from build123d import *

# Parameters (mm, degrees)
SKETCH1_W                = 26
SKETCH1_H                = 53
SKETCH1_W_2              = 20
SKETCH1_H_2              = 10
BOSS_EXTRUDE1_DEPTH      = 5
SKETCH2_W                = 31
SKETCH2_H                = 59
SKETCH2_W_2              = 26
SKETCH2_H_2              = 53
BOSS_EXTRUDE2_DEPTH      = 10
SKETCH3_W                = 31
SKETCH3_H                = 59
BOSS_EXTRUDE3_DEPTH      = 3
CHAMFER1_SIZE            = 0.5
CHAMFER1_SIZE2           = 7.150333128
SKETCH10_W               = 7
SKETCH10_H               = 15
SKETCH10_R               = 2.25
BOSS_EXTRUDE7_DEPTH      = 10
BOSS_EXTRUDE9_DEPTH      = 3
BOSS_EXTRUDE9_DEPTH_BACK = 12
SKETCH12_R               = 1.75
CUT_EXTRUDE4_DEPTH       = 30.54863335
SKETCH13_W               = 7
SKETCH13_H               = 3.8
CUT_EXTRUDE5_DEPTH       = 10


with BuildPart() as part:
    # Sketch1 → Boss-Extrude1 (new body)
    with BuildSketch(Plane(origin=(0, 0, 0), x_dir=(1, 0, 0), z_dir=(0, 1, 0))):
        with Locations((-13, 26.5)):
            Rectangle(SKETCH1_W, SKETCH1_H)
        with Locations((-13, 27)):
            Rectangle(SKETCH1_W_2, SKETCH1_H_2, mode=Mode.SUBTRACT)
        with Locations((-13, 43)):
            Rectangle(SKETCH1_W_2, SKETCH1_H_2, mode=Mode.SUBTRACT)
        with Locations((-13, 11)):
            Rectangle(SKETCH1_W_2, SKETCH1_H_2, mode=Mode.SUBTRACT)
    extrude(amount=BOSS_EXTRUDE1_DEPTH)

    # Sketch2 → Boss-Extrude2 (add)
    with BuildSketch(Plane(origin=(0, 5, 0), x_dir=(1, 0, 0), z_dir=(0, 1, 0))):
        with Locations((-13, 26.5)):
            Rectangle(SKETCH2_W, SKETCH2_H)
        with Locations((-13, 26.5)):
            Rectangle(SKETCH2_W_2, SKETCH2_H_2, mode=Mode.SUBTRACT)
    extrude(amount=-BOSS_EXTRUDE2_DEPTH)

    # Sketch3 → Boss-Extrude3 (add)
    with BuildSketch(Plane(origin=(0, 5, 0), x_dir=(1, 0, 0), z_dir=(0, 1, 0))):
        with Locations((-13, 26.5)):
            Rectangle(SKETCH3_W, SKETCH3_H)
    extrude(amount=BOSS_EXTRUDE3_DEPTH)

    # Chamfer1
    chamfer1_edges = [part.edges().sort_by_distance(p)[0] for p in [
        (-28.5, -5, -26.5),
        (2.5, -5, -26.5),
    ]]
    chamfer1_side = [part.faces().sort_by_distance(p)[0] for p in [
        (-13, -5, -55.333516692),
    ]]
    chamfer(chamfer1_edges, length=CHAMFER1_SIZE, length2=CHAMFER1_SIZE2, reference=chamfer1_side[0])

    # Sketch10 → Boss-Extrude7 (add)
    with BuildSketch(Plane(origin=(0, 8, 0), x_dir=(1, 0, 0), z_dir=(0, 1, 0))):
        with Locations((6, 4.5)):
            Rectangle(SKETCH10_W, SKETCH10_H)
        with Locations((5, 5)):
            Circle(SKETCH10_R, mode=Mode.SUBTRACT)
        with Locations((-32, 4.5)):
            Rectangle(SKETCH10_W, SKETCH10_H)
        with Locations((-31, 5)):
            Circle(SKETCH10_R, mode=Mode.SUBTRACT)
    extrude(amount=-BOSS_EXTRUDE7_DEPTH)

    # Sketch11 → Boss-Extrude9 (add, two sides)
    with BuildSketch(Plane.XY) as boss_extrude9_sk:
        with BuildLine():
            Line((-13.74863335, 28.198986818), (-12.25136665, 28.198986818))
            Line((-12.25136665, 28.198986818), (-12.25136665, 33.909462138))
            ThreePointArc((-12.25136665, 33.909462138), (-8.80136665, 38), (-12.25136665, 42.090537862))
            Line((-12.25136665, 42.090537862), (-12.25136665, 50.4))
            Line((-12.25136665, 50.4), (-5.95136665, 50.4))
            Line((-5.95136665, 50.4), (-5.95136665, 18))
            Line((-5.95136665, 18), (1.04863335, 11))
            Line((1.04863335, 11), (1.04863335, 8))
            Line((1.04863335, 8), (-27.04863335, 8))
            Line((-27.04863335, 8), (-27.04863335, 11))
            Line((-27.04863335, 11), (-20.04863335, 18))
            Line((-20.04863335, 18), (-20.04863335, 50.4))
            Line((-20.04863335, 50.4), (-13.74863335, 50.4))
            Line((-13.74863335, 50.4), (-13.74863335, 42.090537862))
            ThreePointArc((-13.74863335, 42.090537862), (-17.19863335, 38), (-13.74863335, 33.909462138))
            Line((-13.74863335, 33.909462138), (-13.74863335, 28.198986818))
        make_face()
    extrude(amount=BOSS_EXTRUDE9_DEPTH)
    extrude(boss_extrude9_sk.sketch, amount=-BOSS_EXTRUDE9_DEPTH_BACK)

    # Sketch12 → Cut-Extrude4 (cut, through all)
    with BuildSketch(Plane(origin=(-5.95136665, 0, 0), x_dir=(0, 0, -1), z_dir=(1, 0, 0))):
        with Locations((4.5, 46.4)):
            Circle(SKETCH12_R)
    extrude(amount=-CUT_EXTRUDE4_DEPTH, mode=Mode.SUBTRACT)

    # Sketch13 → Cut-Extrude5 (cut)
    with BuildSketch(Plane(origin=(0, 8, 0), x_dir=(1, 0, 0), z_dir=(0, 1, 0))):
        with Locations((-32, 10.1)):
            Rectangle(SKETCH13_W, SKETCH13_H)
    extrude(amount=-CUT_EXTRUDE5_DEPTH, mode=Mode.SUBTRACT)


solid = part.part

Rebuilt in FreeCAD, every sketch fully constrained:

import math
import FreeCAD as App
import Part
import Sketcher
from FreeCAD import Vector


def edges_at(feature, points):
    """Names of the edges that pass closest to the given points."""
    edges = feature.Shape.Edges
    near = lambda p: min(range(len(edges)), key=lambda i: edges[i].distToShape(Part.Vertex(*p))[0])
    return sorted({f"Edge{near(p) + 1}" for p in points})

doc = App.newDocument("Part")
body = doc.addObject("PartDesign::Body", "Body")

# Sketch on XZ plane
sketch1 = doc.addObject("Sketcher::SketchObject", "Sketch")
body.addObject(sketch1)
sketch1.AttachmentSupport = (doc.XZ_Plane, [""])
sketch1.MapMode = "FlatFace"
sketch1.addGeometry(Part.LineSegment(Vector(-26, -53, 0), Vector(-26, 0, 0)), False)
sketch1.addGeometry(Part.LineSegment(Vector(-26, 0, 0), Vector(0, 0, 0)), False)
sketch1.addGeometry(Part.LineSegment(Vector(0, 0, 0), Vector(0, -53, 0)), False)
sketch1.addGeometry(Part.LineSegment(Vector(0, -53, 0), Vector(-26, -53, 0)), False)
sketch1.addGeometry(Part.LineSegment(Vector(-3, -6, 0), Vector(-23, -6, 0)), False)
sketch1.addGeometry(Part.LineSegment(Vector(-23, -6, 0), Vector(-23, -16, 0)), False)
sketch1.addGeometry(Part.LineSegment(Vector(-23, -16, 0), Vector(-3, -16, 0)), False)
sketch1.addGeometry(Part.LineSegment(Vector(-3, -16, 0), Vector(-3, -6, 0)), False)
sketch1.addGeometry(Part.LineSegment(Vector(-3, -22, 0), Vector(-23, -22, 0)), False)
sketch1.addGeometry(Part.LineSegment(Vector(-23, -22, 0), Vector(-23, -32, 0)), False)
sketch1.addGeometry(Part.LineSegment(Vector(-23, -32, 0), Vector(-3, -32, 0)), False)
sketch1.addGeometry(Part.LineSegment(Vector(-3, -32, 0), Vector(-3, -22, 0)), False)
sketch1.addGeometry(Part.LineSegment(Vector(-3, -38, 0), Vector(-23, -38, 0)), False)
sketch1.addGeometry(Part.LineSegment(Vector(-23, -38, 0), Vector(-23, -48, 0)), False)
sketch1.addGeometry(Part.LineSegment(Vector(-23, -48, 0), Vector(-3, -48, 0)), False)
sketch1.addGeometry(Part.LineSegment(Vector(-3, -48, 0), Vector(-3, -38, 0)), False)
sketch1.addConstraint(Sketcher.Constraint("Coincident", 0, 2, 1, 1))
sketch1.addConstraint(Sketcher.Constraint("Coincident", 1, 2, 2, 1))
sketch1.addConstraint(Sketcher.Constraint("Coincident", 2, 2, 3, 1))
sketch1.addConstraint(Sketcher.Constraint("Coincident", 3, 2, 0, 1))
sketch1.addConstraint(Sketcher.Constraint("Coincident", 4, 2, 5, 1))
sketch1.addConstraint(Sketcher.Constraint("Coincident", 5, 2, 6, 1))
sketch1.addConstraint(Sketcher.Constraint("Coincident", 6, 2, 7, 1))
sketch1.addConstraint(Sketcher.Constraint("Coincident", 7, 2, 4, 1))
sketch1.addConstraint(Sketcher.Constraint("Coincident", 8, 2, 9, 1))
sketch1.addConstraint(Sketcher.Constraint("Coincident", 9, 2, 10, 1))
sketch1.addConstraint(Sketcher.Constraint("Coincident", 10, 2, 11, 1))
sketch1.addConstraint(Sketcher.Constraint("Coincident", 11, 2, 8, 1))
sketch1.addConstraint(Sketcher.Constraint("Coincident", 12, 2, 13, 1))
sketch1.addConstraint(Sketcher.Constraint("Coincident", 13, 2, 14, 1))
sketch1.addConstraint(Sketcher.Constraint("Coincident", 14, 2, 15, 1))
sketch1.addConstraint(Sketcher.Constraint("Coincident", 15, 2, 12, 1))
sketch1.addConstraint(Sketcher.Constraint("Vertical", 0))
sketch1.addConstraint(Sketcher.Constraint("Horizontal", 1))
sketch1.addConstraint(Sketcher.Constraint("Vertical", 2))
sketch1.addConstraint(Sketcher.Constraint("Horizontal", 3))
sketch1.addConstraint(Sketcher.Constraint("Horizontal", 4))
sketch1.addConstraint(Sketcher.Constraint("Vertical", 5))
sketch1.addConstraint(Sketcher.Constraint("Horizontal", 6))
sketch1.addConstraint(Sketcher.Constraint("Vertical", 7))
sketch1.addConstraint(Sketcher.Constraint("Horizontal", 8))
sketch1.addConstraint(Sketcher.Constraint("Vertical", 9))
sketch1.addConstraint(Sketcher.Constraint("Horizontal", 10))
sketch1.addConstraint(Sketcher.Constraint("Vertical", 11))
sketch1.addConstraint(Sketcher.Constraint("Horizontal", 12))
sketch1.addConstraint(Sketcher.Constraint("Vertical", 13))
sketch1.addConstraint(Sketcher.Constraint("Horizontal", 14))
sketch1.addConstraint(Sketcher.Constraint("Vertical", 15))
sketch1.addConstraint(Sketcher.Constraint("Coincident", 1, 2, -1, 1))
sketch1.addConstraint(Sketcher.Constraint("Vertical", 5, 2, 8, 2))
sketch1.addConstraint(Sketcher.Constraint("Vertical", 7, 2, 10, 2))
sketch1.addConstraint(Sketcher.Constraint("Vertical", 9, 2, 12, 2))
sketch1.addConstraint(Sketcher.Constraint("Vertical", 11, 2, 14, 2))
sketch1.addConstraint(Sketcher.Constraint("Equal", 7, 9))
sketch1.addConstraint(Sketcher.Constraint("Equal", 11, 13))
sketch1.addConstraint(Sketcher.Constraint("DistanceX", 1, 1, 1, 2, 26.0))
sketch1.addConstraint(Sketcher.Constraint("DistanceX", 4, 2, 4, 1, 20.0))
sketch1.addConstraint(Sketcher.Constraint("DistanceY", 0, 1, 0, 2, 53.0))
sketch1.addConstraint(Sketcher.Constraint("DistanceY", 5, 2, 5, 1, 10.0))
sketch1.addConstraint(Sketcher.Constraint("DistanceX", 4, 2, -1, 1, 23.0))
sketch1.addConstraint(Sketcher.Constraint("DistanceY", 4, 2, -1, 1, 6.0))
sketch1.addConstraint(Sketcher.Constraint("DistanceY", 8, 2, -1, 1, 22.0))
sketch1.addConstraint(Sketcher.Constraint("DistanceY", 12, 2, -1, 1, 38.0))
pad1 = doc.addObject("PartDesign::Pad", "Pad")
body.addObject(pad1)
pad1.Profile = sketch1
pad1.Length = 5
pad1.Reversed = True

# Sketch on XZ plane
sketch2 = doc.addObject("Sketcher::SketchObject", "Sketch001")
body.addObject(sketch2)
sketch2.AttachmentSupport = (doc.XZ_Plane, [""])
sketch2.MapMode = "FlatFace"
sketch2.AttachmentOffset = App.Placement(Vector(0, 0, -5), App.Rotation())
sketch2.addGeometry(Part.LineSegment(Vector(-28, -56, 0), Vector(-28, 3, 0)), False)
sketch2.addGeometry(Part.LineSegment(Vector(-28, 3, 0), Vector(2, 3, 0)), False)
sketch2.addGeometry(Part.LineSegment(Vector(2, 3, 0), Vector(2, -56, 0)), False)
sketch2.addGeometry(Part.LineSegment(Vector(2, -56, 0), Vector(-28, -56, 0)), False)
sketch2.addGeometry(Part.LineSegment(Vector(0, 0, 0), Vector(-26, 0, 0)), False)
sketch2.addGeometry(Part.LineSegment(Vector(-26, 0, 0), Vector(-26, -53, 0)), False)
sketch2.addGeometry(Part.LineSegment(Vector(-26, -53, 0), Vector(0, -53, 0)), False)
sketch2.addGeometry(Part.LineSegment(Vector(0, -53, 0), Vector(0, 0, 0)), False)
sketch2.addConstraint(Sketcher.Constraint("Coincident", 0, 2, 1, 1))
sketch2.addConstraint(Sketcher.Constraint("Coincident", 1, 2, 2, 1))
sketch2.addConstraint(Sketcher.Constraint("Coincident", 2, 2, 3, 1))
sketch2.addConstraint(Sketcher.Constraint("Coincident", 3, 2, 0, 1))
sketch2.addConstraint(Sketcher.Constraint("Coincident", 4, 2, 5, 1))
sketch2.addConstraint(Sketcher.Constraint("Coincident", 5, 2, 6, 1))
sketch2.addConstraint(Sketcher.Constraint("Coincident", 6, 2, 7, 1))
sketch2.addConstraint(Sketcher.Constraint("Coincident", 7, 2, 4, 1))
sketch2.addConstraint(Sketcher.Constraint("Vertical", 0))
sketch2.addConstraint(Sketcher.Constraint("Horizontal", 1))
sketch2.addConstraint(Sketcher.Constraint("Vertical", 2))
sketch2.addConstraint(Sketcher.Constraint("Horizontal", 3))
sketch2.addConstraint(Sketcher.Constraint("Horizontal", 4))
sketch2.addConstraint(Sketcher.Constraint("Vertical", 5))
sketch2.addConstraint(Sketcher.Constraint("Horizontal", 6))
sketch2.addConstraint(Sketcher.Constraint("Vertical", 7))
sketch2.addConstraint(Sketcher.Constraint("Coincident", 7, 2, -1, 1))
sketch2.addConstraint(Sketcher.Constraint("DistanceX", 1, 1, 1, 2, 31.0))
sketch2.addConstraint(Sketcher.Constraint("DistanceX", 4, 2, 4, 1, 26.0))
sketch2.addConstraint(Sketcher.Constraint("DistanceY", 0, 1, 0, 2, 59.0))
sketch2.addConstraint(Sketcher.Constraint("DistanceY", 5, 2, 5, 1, 53.0))
sketch2.addConstraint(Sketcher.Constraint("DistanceY", -1, 1, 0, 2, 3.0))
sketch2.addConstraint(Sketcher.Constraint("DistanceX", 0, 2, -1, 1, 28.5))
pad2 = doc.addObject("PartDesign::Pad", "Pad001")
body.addObject(pad2)
pad2.Profile = sketch2
pad2.Length = 10

# Sketch on XZ plane
sketch3 = doc.addObject("Sketcher::SketchObject", "Sketch002")
body.addObject(sketch3)
sketch3.AttachmentSupport = (doc.XZ_Plane, [""])
sketch3.MapMode = "FlatFace"
sketch3.AttachmentOffset = App.Placement(Vector(0, 0, -5), App.Rotation())
sketch3.addGeometry(Part.LineSegment(Vector(-28, -56, 0), Vector(-28, 3, 0)), False)
sketch3.addGeometry(Part.LineSegment(Vector(-28, 3, 0), Vector(2, 3, 0)), False)
sketch3.addGeometry(Part.LineSegment(Vector(2, 3, 0), Vector(2, -56, 0)), False)
sketch3.addGeometry(Part.LineSegment(Vector(2, -56, 0), Vector(-28, -56, 0)), False)
sketch3.addConstraint(Sketcher.Constraint("Coincident", 0, 2, 1, 1))
sketch3.addConstraint(Sketcher.Constraint("Coincident", 1, 2, 2, 1))
sketch3.addConstraint(Sketcher.Constraint("Coincident", 2, 2, 3, 1))
sketch3.addConstraint(Sketcher.Constraint("Coincident", 3, 2, 0, 1))
sketch3.addConstraint(Sketcher.Constraint("Vertical", 0))
sketch3.addConstraint(Sketcher.Constraint("Horizontal", 1))
sketch3.addConstraint(Sketcher.Constraint("Vertical", 2))
sketch3.addConstraint(Sketcher.Constraint("Horizontal", 3))
sketch3.addConstraint(Sketcher.Constraint("DistanceX", 1, 1, 1, 2, 31.0))
sketch3.addConstraint(Sketcher.Constraint("DistanceY", 0, 1, 0, 2, 59.0))
sketch3.addConstraint(Sketcher.Constraint("DistanceY", -1, 1, 0, 2, 3.0))
sketch3.addConstraint(Sketcher.Constraint("DistanceX", 0, 2, -1, 1, 28.5))
pad3 = doc.addObject("PartDesign::Pad", "Pad002")
body.addObject(pad3)
pad3.Profile = sketch3
pad3.Length = 3
pad3.Reversed = True
doc.recompute()

chamfer = doc.addObject("PartDesign::Chamfer", "Chamfer")
body.addObject(chamfer)
chamfer.Base = (pad3, edges_at(pad3, [(-28.5, -5, -26.5), (2.5, -5, -26.5)]))
chamfer.ChamferType = "Two distances"
chamfer.Size = 0.5
chamfer.Size2 = 7.150333

# Sketch on XZ plane
sketch4 = doc.addObject("Sketcher::SketchObject", "Sketch003")
body.addObject(sketch4)
sketch4.AttachmentSupport = (doc.XZ_Plane, [""])
sketch4.MapMode = "FlatFace"
sketch4.AttachmentOffset = App.Placement(Vector(0, 0, -8), App.Rotation())
sketch4.addGeometry(Part.LineSegment(Vector(2.5, -12, 0), Vector(2.5, 3, 0)), False)
sketch4.addGeometry(Part.LineSegment(Vector(2.5, 3, 0), Vector(9.5, 3, 0)), False)
sketch4.addGeometry(Part.LineSegment(Vector(9.5, 3, 0), Vector(9.5, -12, 0)), False)
sketch4.addGeometry(Part.LineSegment(Vector(9.5, -12, 0), Vector(2.5, -12, 0)), False)
sketch4.addGeometry(Part.Circle(Vector(5, -5, 0), Vector(0, 0, 1), 2.2), False)
sketch4.addGeometry(Part.LineSegment(Vector(-35.5, -12, 0), Vector(-35.5, 3, 0)), False)
sketch4.addGeometry(Part.LineSegment(Vector(-35.5, 3, 0), Vector(-28.5, 3, 0)), False)
sketch4.addGeometry(Part.LineSegment(Vector(-28.5, 3, 0), Vector(-28.5, -12, 0)), False)
sketch4.addGeometry(Part.LineSegment(Vector(-28.5, -12, 0), Vector(-35.5, -12, 0)), False)
sketch4.addGeometry(Part.Circle(Vector(-31, -5, 0), Vector(0, 0, 1), 2.2), False)
sketch4.addConstraint(Sketcher.Constraint("Coincident", 0, 2, 1, 1))
sketch4.addConstraint(Sketcher.Constraint("Coincident", 1, 2, 2, 1))
sketch4.addConstraint(Sketcher.Constraint("Coincident", 2, 2, 3, 1))
sketch4.addConstraint(Sketcher.Constraint("Coincident", 3, 2, 0, 1))
sketch4.addConstraint(Sketcher.Constraint("Coincident", 5, 2, 6, 1))
sketch4.addConstraint(Sketcher.Constraint("Coincident", 6, 2, 7, 1))
sketch4.addConstraint(Sketcher.Constraint("Coincident", 7, 2, 8, 1))
sketch4.addConstraint(Sketcher.Constraint("Coincident", 8, 2, 5, 1))
sketch4.addConstraint(Sketcher.Constraint("Vertical", 0))
sketch4.addConstraint(Sketcher.Constraint("Horizontal", 1))
sketch4.addConstraint(Sketcher.Constraint("Vertical", 2))
sketch4.addConstraint(Sketcher.Constraint("Horizontal", 3))
sketch4.addConstraint(Sketcher.Constraint("Vertical", 5))
sketch4.addConstraint(Sketcher.Constraint("Horizontal", 6))
sketch4.addConstraint(Sketcher.Constraint("Vertical", 7))
sketch4.addConstraint(Sketcher.Constraint("Horizontal", 8))
sketch4.addConstraint(Sketcher.Constraint("Equal", 4, 9))
sketch4.addConstraint(Sketcher.Constraint("Horizontal", 4, 3, 9, 3))
sketch4.addConstraint(Sketcher.Constraint("Horizontal", 1, 2, 5, 2))
sketch4.addConstraint(Sketcher.Constraint("Horizontal", 3, 2, 7, 2))
sketch4.addConstraint(Sketcher.Constraint("Equal", 3, 6))
sketch4.addConstraint(Sketcher.Constraint("Diameter", 4, 4.5))
sketch4.addConstraint(Sketcher.Constraint("DistanceX", 1, 1, 1, 2, 7.0))
sketch4.addConstraint(Sketcher.Constraint("DistanceY", 0, 1, 0, 2, 15.0))
sketch4.addConstraint(Sketcher.Constraint("DistanceX", -1, 1, 4, 3, 5.0))
sketch4.addConstraint(Sketcher.Constraint("DistanceY", 4, 3, -1, 1, 5.0))
sketch4.addConstraint(Sketcher.Constraint("DistanceX", 9, 3, -1, 1, 31.0))
sketch4.addConstraint(Sketcher.Constraint("DistanceY", -1, 1, 0, 2, 3.0))
sketch4.addConstraint(Sketcher.Constraint("DistanceX", 5, 2, 0, 2, 38.0))
sketch4.addConstraint(Sketcher.Constraint("DistanceX", -1, 1, 0, 2, 2.5))
pad4 = doc.addObject("PartDesign::Pad", "Pad003")
body.addObject(pad4)
pad4.Profile = sketch4
pad4.Length = 10

# Sketch on XY plane
sketch5 = doc.addObject("Sketcher::SketchObject", "Sketch004")
body.addObject(sketch5)
sketch5.AttachmentSupport = (doc.XY_Plane, [""])
sketch5.MapMode = "FlatFace"
sketch5.addGeometry(Part.LineSegment(Vector(-12.3, 28.2, 0), Vector(-13.7, 28.2, 0)), False)
sketch5.addGeometry(Part.LineSegment(Vector(-13.7, 28.2, 0), Vector(-13.7, 33.9, 0)), False)
sketch5.addGeometry(Part.ArcOfCircle(Part.Circle(Vector(-13, 38, 0), Vector(0, 0, 1), 4.2), math.radians(100), math.radians(260)), False)
sketch5.addGeometry(Part.LineSegment(Vector(-13.7, 42.1, 0), Vector(-13.7, 50.4, 0)), False)
sketch5.addGeometry(Part.LineSegment(Vector(-13.7, 50.4, 0), Vector(-20, 50.4, 0)), False)
sketch5.addGeometry(Part.LineSegment(Vector(-20, 50.4, 0), Vector(-20, 18, 0)), False)
sketch5.addGeometry(Part.LineSegment(Vector(-20, 18, 0), Vector(-27, 11, 0)), False)
sketch5.addGeometry(Part.LineSegment(Vector(-27, 11, 0), Vector(-27, 8, 0)), False)
sketch5.addGeometry(Part.LineSegment(Vector(-27, 8, 0), Vector(1, 8, 0)), False)
sketch5.addGeometry(Part.LineSegment(Vector(1, 8, 0), Vector(1, 11, 0)), False)
sketch5.addGeometry(Part.LineSegment(Vector(1, 11, 0), Vector(-6, 18, 0)), False)
sketch5.addGeometry(Part.LineSegment(Vector(-6, 18, 0), Vector(-6, 50.4, 0)), False)
sketch5.addGeometry(Part.LineSegment(Vector(-6, 50.4, 0), Vector(-12.3, 50.4, 0)), False)
sketch5.addGeometry(Part.LineSegment(Vector(-12.3, 50.4, 0), Vector(-12.3, 42.1, 0)), False)
sketch5.addGeometry(Part.ArcOfCircle(Part.Circle(Vector(-13, 38, 0), Vector(0, 0, 1), 4.2), math.radians(-80), math.radians(80)), False)
sketch5.addGeometry(Part.LineSegment(Vector(-12.3, 33.9, 0), Vector(-12.3, 28.2, 0)), False)
sketch5.addConstraint(Sketcher.Constraint("Coincident", 0, 2, 1, 1))
sketch5.addConstraint(Sketcher.Constraint("Coincident", 1, 2, 2, 2))
sketch5.addConstraint(Sketcher.Constraint("Coincident", 2, 1, 3, 1))
sketch5.addConstraint(Sketcher.Constraint("Coincident", 3, 2, 4, 1))
sketch5.addConstraint(Sketcher.Constraint("Coincident", 4, 2, 5, 1))
sketch5.addConstraint(Sketcher.Constraint("Coincident", 5, 2, 6, 1))
sketch5.addConstraint(Sketcher.Constraint("Coincident", 6, 2, 7, 1))
sketch5.addConstraint(Sketcher.Constraint("Coincident", 7, 2, 8, 1))
sketch5.addConstraint(Sketcher.Constraint("Coincident", 8, 2, 9, 1))
sketch5.addConstraint(Sketcher.Constraint("Coincident", 9, 2, 10, 1))
sketch5.addConstraint(Sketcher.Constraint("Coincident", 10, 2, 11, 1))
sketch5.addConstraint(Sketcher.Constraint("Coincident", 11, 2, 12, 1))
sketch5.addConstraint(Sketcher.Constraint("Coincident", 12, 2, 13, 1))
sketch5.addConstraint(Sketcher.Constraint("Coincident", 13, 2, 14, 2))
sketch5.addConstraint(Sketcher.Constraint("Coincident", 14, 1, 15, 1))
sketch5.addConstraint(Sketcher.Constraint("Coincident", 15, 2, 0, 1))
sketch5.addConstraint(Sketcher.Constraint("Horizontal", 0))
sketch5.addConstraint(Sketcher.Constraint("Vertical", 1))
sketch5.addConstraint(Sketcher.Constraint("Vertical", 3))
sketch5.addConstraint(Sketcher.Constraint("Horizontal", 4))
sketch5.addConstraint(Sketcher.Constraint("Vertical", 5))
sketch5.addConstraint(Sketcher.Constraint("Vertical", 7))
sketch5.addConstraint(Sketcher.Constraint("Horizontal", 8))
sketch5.addConstraint(Sketcher.Constraint("Vertical", 9))
sketch5.addConstraint(Sketcher.Constraint("Vertical", 11))
sketch5.addConstraint(Sketcher.Constraint("Horizontal", 12))
sketch5.addConstraint(Sketcher.Constraint("Vertical", 13))
sketch5.addConstraint(Sketcher.Constraint("Vertical", 15))
sketch5.addConstraint(Sketcher.Constraint("Equal", 2, 14))
sketch5.addConstraint(Sketcher.Constraint("Perpendicular", 6, 10))
sketch5.addConstraint(Sketcher.Constraint("Horizontal", 2, 3, 14, 3))
sketch5.addConstraint(Sketcher.Constraint("Horizontal", 6, 2, 9, 2))
sketch5.addConstraint(Sketcher.Constraint("Horizontal", 5, 2, 10, 2))
sketch5.addConstraint(Sketcher.Constraint("Horizontal", 4, 2, 11, 2))
sketch5.addConstraint(Sketcher.Constraint("Horizontal", 2, 1, 13, 2))
sketch5.addConstraint(Sketcher.Constraint("Horizontal", 1, 2, 14, 1))
sketch5.addConstraint(Sketcher.Constraint("Vertical", 1, 2, 2, 1))
sketch5.addConstraint(Sketcher.Constraint("Equal", 4, 12))
sketch5.addConstraint(Sketcher.Constraint("Equal", 6, 10))
sketch5.addConstraint(Sketcher.Constraint("DistanceY", 7, 2, 7, 1, 3.0))
sketch5.addConstraint(Sketcher.Constraint("Radius", 2, 4.15))
sketch5.addConstraint(Sketcher.Constraint("DistanceX", 4, 2, 4, 1, 6.3))
sketch5.addConstraint(Sketcher.Constraint("DistanceY", 5, 2, 5, 1, 32.4))
sketch5.addConstraint(Sketcher.Constraint("DistanceY", -1, 1, 2, 3, 38.0))
sketch5.addConstraint(Sketcher.Constraint("DistanceY", -1, 1, 5, 2, 18.0))
sketch5.addConstraint(Sketcher.Constraint("DistanceY", -1, 1, 6, 2, 11.0))
sketch5.addConstraint(Sketcher.Constraint("DistanceX", 4, 2, 2, 3, 7.0))
sketch5.addConstraint(Sketcher.Constraint("DistanceX", 0, 2, 0, 1, 1.497267))
sketch5.addConstraint(Sketcher.Constraint("DistanceY", 1, 1, 1, 2, 5.710475))
sketch5.addConstraint(Sketcher.Constraint("DistanceX", 2, 3, -1, 1, 13.048633))
pad5 = doc.addObject("PartDesign::Pad", "Pad004")
body.addObject(pad5)
pad5.Profile = sketch5
pad5.Type = "TwoLengths"
pad5.Length = 3
pad5.Length2 = 12

# Sketch on YZ plane
sketch6 = doc.addObject("Sketcher::SketchObject", "Sketch005")
body.addObject(sketch6)
sketch6.AttachmentSupport = (doc.YZ_Plane, [""])
sketch6.MapMode = "FlatFace"
sketch6.AttachmentOffset = App.Placement(Vector(0, 0, -5.951367), App.Rotation())
sketch6.addGeometry(Part.Circle(Vector(46.4, -4.5, 0), Vector(0, 0, 1), 1.8), False)
sketch6.addConstraint(Sketcher.Constraint("Diameter", 0, 3.5))
sketch6.addConstraint(Sketcher.Constraint("DistanceX", -1, 1, 0, 3, 46.4))
sketch6.addConstraint(Sketcher.Constraint("DistanceY", 0, 3, -1, 1, 4.5))
pocket1 = doc.addObject("PartDesign::Pocket", "Pocket")
body.addObject(pocket1)
pocket1.Profile = sketch6
pocket1.Type = "ThroughAll"

# Sketch on XZ plane
sketch7 = doc.addObject("Sketcher::SketchObject", "Sketch006")
body.addObject(sketch7)
sketch7.AttachmentSupport = (doc.XZ_Plane, [""])
sketch7.MapMode = "FlatFace"
sketch7.AttachmentOffset = App.Placement(Vector(0, 0, -8), App.Rotation())
sketch7.addGeometry(Part.LineSegment(Vector(-35.5, -12, 0), Vector(-35.5, -8.2, 0)), False)
sketch7.addGeometry(Part.LineSegment(Vector(-35.5, -8.2, 0), Vector(-28.5, -8.2, 0)), False)
sketch7.addGeometry(Part.LineSegment(Vector(-28.5, -8.2, 0), Vector(-28.5, -12, 0)), False)
sketch7.addGeometry(Part.LineSegment(Vector(-28.5, -12, 0), Vector(-35.5, -12, 0)), False)
sketch7.addConstraint(Sketcher.Constraint("Coincident", 0, 2, 1, 1))
sketch7.addConstraint(Sketcher.Constraint("Coincident", 1, 2, 2, 1))
sketch7.addConstraint(Sketcher.Constraint("Coincident", 2, 2, 3, 1))
sketch7.addConstraint(Sketcher.Constraint("Coincident", 3, 2, 0, 1))
sketch7.addConstraint(Sketcher.Constraint("Vertical", 0))
sketch7.addConstraint(Sketcher.Constraint("Horizontal", 1))
sketch7.addConstraint(Sketcher.Constraint("Vertical", 2))
sketch7.addConstraint(Sketcher.Constraint("Horizontal", 3))
sketch7.addConstraint(Sketcher.Constraint("DistanceX", 1, 1, 1, 2, 7.0))
sketch7.addConstraint(Sketcher.Constraint("DistanceY", 0, 1, 0, 2, 3.8))
sketch7.addConstraint(Sketcher.Constraint("DistanceY", 2, 2, -1, 1, 12.0))
sketch7.addConstraint(Sketcher.Constraint("DistanceX", 0, 2, -1, 1, 35.5))
pocket2 = doc.addObject("PartDesign::Pocket", "Pocket001")
body.addObject(pocket2)
pocket2.Profile = sketch7
pocket2.Length = 10
pocket2.Reversed = True

doc.recompute()
